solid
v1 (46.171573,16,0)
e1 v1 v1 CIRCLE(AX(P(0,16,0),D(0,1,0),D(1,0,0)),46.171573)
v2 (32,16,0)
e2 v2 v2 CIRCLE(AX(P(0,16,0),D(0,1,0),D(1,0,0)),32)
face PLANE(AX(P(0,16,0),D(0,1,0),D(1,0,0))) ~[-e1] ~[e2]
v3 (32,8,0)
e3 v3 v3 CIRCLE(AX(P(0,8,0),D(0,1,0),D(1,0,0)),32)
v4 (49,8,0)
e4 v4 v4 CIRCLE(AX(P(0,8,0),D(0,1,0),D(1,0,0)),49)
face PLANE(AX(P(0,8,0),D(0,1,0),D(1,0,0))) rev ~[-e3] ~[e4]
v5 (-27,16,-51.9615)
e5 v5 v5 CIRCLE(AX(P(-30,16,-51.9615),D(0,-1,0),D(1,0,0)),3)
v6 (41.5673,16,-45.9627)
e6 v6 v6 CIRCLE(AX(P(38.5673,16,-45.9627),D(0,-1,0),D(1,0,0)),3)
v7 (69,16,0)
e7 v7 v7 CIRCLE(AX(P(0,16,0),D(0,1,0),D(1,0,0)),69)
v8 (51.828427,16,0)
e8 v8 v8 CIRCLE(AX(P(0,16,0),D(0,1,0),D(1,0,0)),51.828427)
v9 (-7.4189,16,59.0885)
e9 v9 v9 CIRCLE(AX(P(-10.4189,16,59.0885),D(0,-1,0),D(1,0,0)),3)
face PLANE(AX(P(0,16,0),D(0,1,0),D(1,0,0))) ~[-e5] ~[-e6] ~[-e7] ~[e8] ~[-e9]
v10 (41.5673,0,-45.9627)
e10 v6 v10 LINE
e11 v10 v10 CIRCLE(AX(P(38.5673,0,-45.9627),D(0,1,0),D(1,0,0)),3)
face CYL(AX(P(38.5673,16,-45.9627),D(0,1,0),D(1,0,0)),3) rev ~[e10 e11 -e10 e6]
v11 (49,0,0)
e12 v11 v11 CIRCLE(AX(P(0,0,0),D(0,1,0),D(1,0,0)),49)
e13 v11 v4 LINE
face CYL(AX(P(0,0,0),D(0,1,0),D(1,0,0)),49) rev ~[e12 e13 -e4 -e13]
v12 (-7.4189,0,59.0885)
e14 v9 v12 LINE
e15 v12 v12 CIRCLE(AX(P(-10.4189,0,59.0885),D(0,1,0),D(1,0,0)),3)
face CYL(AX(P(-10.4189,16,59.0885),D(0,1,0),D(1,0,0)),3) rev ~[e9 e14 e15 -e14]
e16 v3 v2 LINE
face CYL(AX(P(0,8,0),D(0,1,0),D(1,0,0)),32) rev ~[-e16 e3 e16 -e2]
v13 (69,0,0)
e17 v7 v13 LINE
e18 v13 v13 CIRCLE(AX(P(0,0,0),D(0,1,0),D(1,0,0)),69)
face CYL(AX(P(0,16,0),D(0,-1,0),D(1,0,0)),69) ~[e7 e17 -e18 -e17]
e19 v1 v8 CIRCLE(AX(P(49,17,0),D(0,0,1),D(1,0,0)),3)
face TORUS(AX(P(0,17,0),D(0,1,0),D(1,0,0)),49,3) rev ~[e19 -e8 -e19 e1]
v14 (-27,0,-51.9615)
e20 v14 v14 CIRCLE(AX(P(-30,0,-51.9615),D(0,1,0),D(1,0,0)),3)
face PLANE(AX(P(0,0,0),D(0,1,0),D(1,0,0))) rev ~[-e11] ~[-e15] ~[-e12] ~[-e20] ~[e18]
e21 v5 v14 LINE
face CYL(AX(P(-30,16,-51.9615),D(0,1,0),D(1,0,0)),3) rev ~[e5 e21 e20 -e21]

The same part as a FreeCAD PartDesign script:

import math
import FreeCAD as App
import Part
import Sketcher

doc = App.newDocument("Part")
body = doc.addObject("PartDesign::Body", "Body")

sketch1 = body.newObject("Sketcher::SketchObject", "Sketch")
sketch1.AttachmentSupport = (doc.getObject("XY_Plane"), [""])
sketch1.MapMode = "FlatFace"
sketch1.addGeometry(Part.LineSegment(App.Vector(46.171573, 16, 0), App.Vector(32, 16, 0)), False)
sketch1.addGeometry(Part.LineSegment(App.Vector(32, 16, 0), App.Vector(32, 8, 0)), False)
sketch1.addGeometry(Part.LineSegment(App.Vector(32, 8, 0), App.Vector(49, 8, 0)), False)
sketch1.addGeometry(Part.LineSegment(App.Vector(49, 8, 0), App.Vector(49, 0, 0)), False)
sketch1.addGeometry(Part.LineSegment(App.Vector(49, 0, 0), App.Vector(69, 0, 0)), False)
sketch1.addGeometry(Part.LineSegment(App.Vector(69, 0, 0), App.Vector(69, 16, 0)), False)
sketch1.addGeometry(Part.LineSegment(App.Vector(69, 16, 0), App.Vector(51.828427, 16, 0)), False)
sketch1.addGeometry(Part.ArcOfCircle(Part.Circle(App.Vector(49, 17, 0), App.Vector(0, 0, 1), 3), math.radians(-160.528779), math.radians(-19.471221)), False)
sketch1.addConstraint(Sketcher.Constraint("Coincident", 0, 2, 1, 1))
sketch1.addConstraint(Sketcher.Constraint("Coincident", 1, 2, 2, 1))
sketch1.addConstraint(Sketcher.Constraint("Coincident", 2, 2, 3, 1))
sketch1.addConstraint(Sketcher.Constraint("Coincident", 3, 2, 4, 1))
sketch1.addConstraint(Sketcher.Constraint("Coincident", 4, 2, 5, 1))
sketch1.addConstraint(Sketcher.Constraint("Coincident", 5, 2, 6, 1))
sketch1.addConstraint(Sketcher.Constraint("Coincident", 6, 2, 7, 2))
sketch1.addConstraint(Sketcher.Constraint("Coincident", 7, 1, 0, 1))
sketch1.addConstraint(Sketcher.Constraint("Horizontal", 0))
sketch1.addConstraint(Sketcher.Constraint("Vertical", 1))
sketch1.addConstraint(Sketcher.Constraint("Horizontal", 2))
sketch1.addConstraint(Sketcher.Constraint("Vertical", 3))
sketch1.addConstraint(Sketcher.Constraint("Horizontal", 4))
sketch1.addConstraint(Sketcher.Constraint("Vertical", 5))
sketch1.addConstraint(Sketcher.Constraint("Horizontal", 6))
sketch1.addConstraint(Sketcher.Constraint("PointOnObject", 3, 2, -1))
sketch1.addConstraint(Sketcher.Constraint("Horizontal", 0, 2, 5, 2))
sketch1.addConstraint(Sketcher.Constraint("Vertical", 7, 3, 2, 2))
sketch1.addConstraint(Sketcher.Constraint("Equal", 1, 3))
sketch1.addConstraint(Sketcher.Constraint("Radius", 7, 3.0))
sketch1.addConstraint(Sketcher.Constraint("DistanceX", 2, 1, 2, 2, 17.0))
sketch1.addConstraint(Sketcher.Constraint("DistanceX", 4, 1, 4, 2, 20.0))
sketch1.addConstraint(Sketcher.Constraint("DistanceY", 1, 2, 1, 1, 8.0))
sketch1.addConstraint(Sketcher.Constraint("DistanceX", -1, 1, 7, 3, 49.0))
sketch1.addConstraint(Sketcher.Constraint("DistanceY", -1, 1, 7, 3, 17.0))
revolution = body.newObject("PartDesign::Revolution", "Revolution")
revolution.Profile = sketch1
revolution.ReferenceAxis = (sketch1, ["V_Axis"])
revolution.Angle = 360

sketch2 = body.newObject("Sketcher::SketchObject", "Sketch001")
sketch2.AttachmentSupport = (doc.getObject("XZ_Plane"), [""])
sketch2.MapMode = "FlatFace"
sketch2.AttachmentOffset = App.Placement(App.Vector(0, 0, -16), App.Rotation())
sketch2.addGeometry(Part.Circle(App.Vector(38.5673, -45.9627, 0), App.Vector(0, 0, 1), 3), False)
sketch2.addGeometry(Part.Circle(App.Vector(-30, -51.9615, 0), App.Vector(0, 0, 1), 3), False)
sketch2.addGeometry(Part.Circle(App.Vector(-10.4189, 59.0885, 0), App.Vector(0, 0, 1), 3), False)
sketch2.addConstraint(Sketcher.Constraint("Equal", 0, 1))
sketch2.addConstraint(Sketcher.Constraint("Equal", 1, 2))
sketch2.addConstraint(Sketcher.Constraint("Diameter", 0, 6.0))
sketch2.addConstraint(Sketcher.Constraint("DistanceX", 1, 3, -1, 1, 30.0))
sketch2.addConstraint(Sketcher.Constraint("DistanceY", 1, 3, 2, 3, 111.05))
sketch2.addConstraint(Sketcher.Constraint("DistanceX", 2, 3, -1, 1, 10.419))
sketch2.addConstraint(Sketcher.Constraint("DistanceX", -1, 1, 0, 3, 38.5673))
sketch2.addConstraint(Sketcher.Constraint("DistanceY", 0, 3, -1, 1, 45.9627))
sketch2.addConstraint(Sketcher.Constraint("DistanceY", 1, 3, -1, 1, 51.9615))
pocket1 = body.newObject("PartDesign::Pocket", "Pocket")
pocket1.Profile = sketch2
pocket1.Type = "ThroughAll"
pocket1.Reversed = True

doc.recompute()
